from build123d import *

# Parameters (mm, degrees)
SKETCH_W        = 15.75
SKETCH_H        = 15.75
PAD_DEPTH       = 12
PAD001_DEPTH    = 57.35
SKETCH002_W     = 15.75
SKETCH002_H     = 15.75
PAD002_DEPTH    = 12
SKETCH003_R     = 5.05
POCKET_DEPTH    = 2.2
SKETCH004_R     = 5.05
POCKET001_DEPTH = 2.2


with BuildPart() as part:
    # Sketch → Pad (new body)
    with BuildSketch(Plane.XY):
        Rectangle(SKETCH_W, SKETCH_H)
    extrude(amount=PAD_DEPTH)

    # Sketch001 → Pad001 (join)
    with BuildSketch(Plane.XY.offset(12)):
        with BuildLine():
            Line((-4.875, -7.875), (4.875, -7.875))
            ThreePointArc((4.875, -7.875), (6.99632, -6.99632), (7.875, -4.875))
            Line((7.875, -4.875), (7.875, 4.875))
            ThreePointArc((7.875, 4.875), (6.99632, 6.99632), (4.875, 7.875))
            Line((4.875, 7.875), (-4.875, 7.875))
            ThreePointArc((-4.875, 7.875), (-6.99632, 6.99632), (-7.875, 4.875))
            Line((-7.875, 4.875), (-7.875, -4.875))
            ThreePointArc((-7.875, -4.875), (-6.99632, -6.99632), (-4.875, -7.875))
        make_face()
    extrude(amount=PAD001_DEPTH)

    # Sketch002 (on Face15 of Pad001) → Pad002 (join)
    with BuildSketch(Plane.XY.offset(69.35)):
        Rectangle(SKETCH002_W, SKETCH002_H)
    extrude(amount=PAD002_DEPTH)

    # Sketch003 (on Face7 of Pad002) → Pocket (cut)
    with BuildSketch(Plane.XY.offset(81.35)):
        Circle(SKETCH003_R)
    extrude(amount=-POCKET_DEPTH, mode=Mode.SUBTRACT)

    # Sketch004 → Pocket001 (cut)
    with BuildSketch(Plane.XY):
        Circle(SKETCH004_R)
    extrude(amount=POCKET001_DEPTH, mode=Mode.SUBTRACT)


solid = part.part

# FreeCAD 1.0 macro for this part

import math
import FreeCAD as App
import Part
import Sketcher
from FreeCAD import Vector


def add_polygon(sketch, points):
    """Adds a closed chain of lines whose ends are joined by coincident constraints."""
    first, n = sketch.GeometryCount, len(points)
    for a, b in zip(points, points[1:] + points[:1]):
        sketch.addGeometry(Part.LineSegment(App.Vector(*a, 0), App.Vector(*b, 0)), False)
    for i in range(n):
        sketch.addConstraint(Sketcher.Constraint("Coincident", first + i, 2, first + (i + 1) % n, 1))

doc = App.newDocument("Part")
body = doc.addObject("PartDesign::Body", "Body")

sketch1 = doc.addObject("Sketcher::SketchObject", "Sketch")
body.addObject(sketch1)
sketch1.AttachmentSupport = (doc.XY_Plane, [""])
sketch1.MapMode = "FlatFace"
add_polygon(sketch1, [(-8, 8), (-8, -8), (8, -8), (8, 8)])
sketch1.addConstraint([
    Sketcher.Constraint("Vertical", 0),
    Sketcher.Constraint("Horizontal", 1),
    Sketcher.Constraint("Vertical", 2),
    Sketcher.Constraint("Horizontal", 3),
    Sketcher.Constraint("Symmetric", 0, 2, 2, 2, -1, 1),
    Sketcher.Constraint("Equal", 3, 0),
    Sketcher.Constraint("DistanceX", 1, 1, 1, 2, 15.75),
])
pad1 = doc.addObject("PartDesign::Pad", "Pad")
body.addObject(pad1)
pad1.Profile = sketch1
pad1.Length = 12

sketch2 = doc.addObject("Sketcher::SketchObject", "Sketch001")
body.addObject(sketch2)
sketch2.AttachmentSupport = (doc.XY_Plane, [""])
sketch2.MapMode = "FlatFace"
sketch2.AttachmentOffset = App.Placement(Vector(0, 0, 12), App.Rotation())
sketch2.addGeometry([
    Part.LineSegment(Vector(-4.9, -7.9, 0), Vector(4.9, -7.9, 0)),
    Part.ArcOfCircle(Part.Circle(Vector(4.9, -4.9, 0), Vector(0, 0, 1), 3), math.radians(-90), math.radians(0)),
    Part.LineSegment(Vector(7.9, -4.9, 0), Vector(7.9, 4.9, 0)),
    Part.ArcOfCircle(Part.Circle(Vector(4.9, 4.9, 0), Vector(0, 0, 1), 3), math.radians(0), math.radians(90)),
    Part.LineSegment(Vector(4.9, 7.9, 0), Vector(-4.9, 7.9, 0)),
    Part.ArcOfCircle(Part.Circle(Vector(-4.9, 4.9, 0), Vector(0, 0, 1), 3), math.radians(90), math.radians(180)),
    Part.LineSegment(Vector(-7.9, 4.9, 0), Vector(-7.9, -4.9, 0)),
    Part.ArcOfCircle(Part.Circle(Vector(-4.9, -4.9, 0), Vector(0, 0, 1), 3), math.radians(-180), math.radians(-90)),
], False)
sketch2.addConstraint([
    Sketcher.Constraint("Tangent", 0, 2, 1, 1),
    Sketcher.Constraint("Tangent", 1, 2, 2, 1),
    Sketcher.Constraint("Tangent", 2, 2, 3, 1),
    Sketcher.Constraint("Tangent", 3, 2, 4, 1),
    Sketcher.Constraint("Tangent", 4, 2, 5, 1),
    Sketcher.Constraint("Tangent", 5, 2, 6, 1),
    Sketcher.Constraint("Tangent", 6, 2, 7, 1),
    Sketcher.Constraint("Tangent", 7, 2, 0, 1),
    Sketcher.Constraint("Horizontal", 0),
    Sketcher.Constraint("Vertical", 2),
    Sketcher.Constraint("Horizontal", 4),
    Sketcher.Constraint("Vertical", 6),
    Sketcher.Constraint("Equal", 1, 3),
    Sketcher.Constraint("Equal", 3, 5),
    Sketcher.Constraint("Equal", 5, 7),
    Sketcher.Constraint("Symmetric", 1, 3, 5, 3, -1, 1),
    Sketcher.Constraint("Equal", 4, 2),
    Sketcher.Constraint("Radius", 1, 3.000001),
    Sketcher.Constraint("DistanceX", 0, 1, 0, 2, 9.75),
])
pad2 = doc.addObject("PartDesign::Pad", "Pad001")
body.addObject(pad2)
pad2.Profile = sketch2
pad2.Length = 57.35

sketch3 = doc.addObject("Sketcher::SketchObject", "Sketch002")
body.addObject(sketch3)
sketch3.AttachmentSupport = (doc.XY_Plane, [""])
sketch3.MapMode = "FlatFace"
sketch3.AttachmentOffset = App.Placement(Vector(0, 0, 69.35), App.Rotation())
add_polygon(sketch3, [(-8, 8), (-8, -8), (8, -8), (8, 8)])
sketch3.addConstraint([
    Sketcher.Constraint("Vertical", 0),
    Sketcher.Constraint("Horizontal", 1),
    Sketcher.Constraint("Vertical", 2),
    Sketcher.Constraint("Horizontal", 3),
    Sketcher.Constraint("Symmetric", 0, 2, 2, 2, -1, 1),
    Sketcher.Constraint("Equal", 3, 0),
    Sketcher.Constraint("DistanceX", 1, 1, 1, 2, 15.75),
])
pad3 = doc.addObject("PartDesign::Pad", "Pad002")
body.addObject(pad3)
pad3.Profile = sketch3
pad3.Length = 12

sketch4 = doc.addObject("Sketcher::SketchObject", "Sketch003")
body.addObject(sketch4)
sketch4.AttachmentSupport = (doc.XY_Plane, [""])
sketch4.MapMode = "FlatFace"
sketch4.AttachmentOffset = App.Placement(Vector(0, 0, 81.35), App.Rotation())
sketch4.addGeometry(Part.Circle(Vector(0, 0, 0), Vector(0, 0, 1), 5), False)
sketch4.addConstraint([
    Sketcher.Constraint("Coincident", 0, 3, -1, 1),
    Sketcher.Constraint("Diameter", 0, 10.1),
])
pocket1 = doc.addObject("PartDesign::Pocket", "Pocket")
body.addObject(pocket1)
pocket1.Profile = sketch4
pocket1.Length = 2.2

sketch5 = doc.addObject("Sketcher::SketchObject", "Sketch004")
body.addObject(sketch5)
sketch5.AttachmentSupport = (doc.XY_Plane, [""])
sketch5.MapMode = "FlatFace"
sketch5.addGeometry(Part.Circle(Vector(0, 0, 0), Vector(0, 0, 1), 5), False)
sketch5.addConstraint([
    Sketcher.Constraint("Coincident", 0, 3, -1, 1),
    Sketcher.Constraint("Diameter", 0, 10.1),
])
pocket2 = doc.addObject("PartDesign::Pocket", "Pocket001")
body.addObject(pocket2)
pocket2.Profile = sketch5
pocket2.Length = 2.2
pocket2.Reversed = True

doc.recompute()
